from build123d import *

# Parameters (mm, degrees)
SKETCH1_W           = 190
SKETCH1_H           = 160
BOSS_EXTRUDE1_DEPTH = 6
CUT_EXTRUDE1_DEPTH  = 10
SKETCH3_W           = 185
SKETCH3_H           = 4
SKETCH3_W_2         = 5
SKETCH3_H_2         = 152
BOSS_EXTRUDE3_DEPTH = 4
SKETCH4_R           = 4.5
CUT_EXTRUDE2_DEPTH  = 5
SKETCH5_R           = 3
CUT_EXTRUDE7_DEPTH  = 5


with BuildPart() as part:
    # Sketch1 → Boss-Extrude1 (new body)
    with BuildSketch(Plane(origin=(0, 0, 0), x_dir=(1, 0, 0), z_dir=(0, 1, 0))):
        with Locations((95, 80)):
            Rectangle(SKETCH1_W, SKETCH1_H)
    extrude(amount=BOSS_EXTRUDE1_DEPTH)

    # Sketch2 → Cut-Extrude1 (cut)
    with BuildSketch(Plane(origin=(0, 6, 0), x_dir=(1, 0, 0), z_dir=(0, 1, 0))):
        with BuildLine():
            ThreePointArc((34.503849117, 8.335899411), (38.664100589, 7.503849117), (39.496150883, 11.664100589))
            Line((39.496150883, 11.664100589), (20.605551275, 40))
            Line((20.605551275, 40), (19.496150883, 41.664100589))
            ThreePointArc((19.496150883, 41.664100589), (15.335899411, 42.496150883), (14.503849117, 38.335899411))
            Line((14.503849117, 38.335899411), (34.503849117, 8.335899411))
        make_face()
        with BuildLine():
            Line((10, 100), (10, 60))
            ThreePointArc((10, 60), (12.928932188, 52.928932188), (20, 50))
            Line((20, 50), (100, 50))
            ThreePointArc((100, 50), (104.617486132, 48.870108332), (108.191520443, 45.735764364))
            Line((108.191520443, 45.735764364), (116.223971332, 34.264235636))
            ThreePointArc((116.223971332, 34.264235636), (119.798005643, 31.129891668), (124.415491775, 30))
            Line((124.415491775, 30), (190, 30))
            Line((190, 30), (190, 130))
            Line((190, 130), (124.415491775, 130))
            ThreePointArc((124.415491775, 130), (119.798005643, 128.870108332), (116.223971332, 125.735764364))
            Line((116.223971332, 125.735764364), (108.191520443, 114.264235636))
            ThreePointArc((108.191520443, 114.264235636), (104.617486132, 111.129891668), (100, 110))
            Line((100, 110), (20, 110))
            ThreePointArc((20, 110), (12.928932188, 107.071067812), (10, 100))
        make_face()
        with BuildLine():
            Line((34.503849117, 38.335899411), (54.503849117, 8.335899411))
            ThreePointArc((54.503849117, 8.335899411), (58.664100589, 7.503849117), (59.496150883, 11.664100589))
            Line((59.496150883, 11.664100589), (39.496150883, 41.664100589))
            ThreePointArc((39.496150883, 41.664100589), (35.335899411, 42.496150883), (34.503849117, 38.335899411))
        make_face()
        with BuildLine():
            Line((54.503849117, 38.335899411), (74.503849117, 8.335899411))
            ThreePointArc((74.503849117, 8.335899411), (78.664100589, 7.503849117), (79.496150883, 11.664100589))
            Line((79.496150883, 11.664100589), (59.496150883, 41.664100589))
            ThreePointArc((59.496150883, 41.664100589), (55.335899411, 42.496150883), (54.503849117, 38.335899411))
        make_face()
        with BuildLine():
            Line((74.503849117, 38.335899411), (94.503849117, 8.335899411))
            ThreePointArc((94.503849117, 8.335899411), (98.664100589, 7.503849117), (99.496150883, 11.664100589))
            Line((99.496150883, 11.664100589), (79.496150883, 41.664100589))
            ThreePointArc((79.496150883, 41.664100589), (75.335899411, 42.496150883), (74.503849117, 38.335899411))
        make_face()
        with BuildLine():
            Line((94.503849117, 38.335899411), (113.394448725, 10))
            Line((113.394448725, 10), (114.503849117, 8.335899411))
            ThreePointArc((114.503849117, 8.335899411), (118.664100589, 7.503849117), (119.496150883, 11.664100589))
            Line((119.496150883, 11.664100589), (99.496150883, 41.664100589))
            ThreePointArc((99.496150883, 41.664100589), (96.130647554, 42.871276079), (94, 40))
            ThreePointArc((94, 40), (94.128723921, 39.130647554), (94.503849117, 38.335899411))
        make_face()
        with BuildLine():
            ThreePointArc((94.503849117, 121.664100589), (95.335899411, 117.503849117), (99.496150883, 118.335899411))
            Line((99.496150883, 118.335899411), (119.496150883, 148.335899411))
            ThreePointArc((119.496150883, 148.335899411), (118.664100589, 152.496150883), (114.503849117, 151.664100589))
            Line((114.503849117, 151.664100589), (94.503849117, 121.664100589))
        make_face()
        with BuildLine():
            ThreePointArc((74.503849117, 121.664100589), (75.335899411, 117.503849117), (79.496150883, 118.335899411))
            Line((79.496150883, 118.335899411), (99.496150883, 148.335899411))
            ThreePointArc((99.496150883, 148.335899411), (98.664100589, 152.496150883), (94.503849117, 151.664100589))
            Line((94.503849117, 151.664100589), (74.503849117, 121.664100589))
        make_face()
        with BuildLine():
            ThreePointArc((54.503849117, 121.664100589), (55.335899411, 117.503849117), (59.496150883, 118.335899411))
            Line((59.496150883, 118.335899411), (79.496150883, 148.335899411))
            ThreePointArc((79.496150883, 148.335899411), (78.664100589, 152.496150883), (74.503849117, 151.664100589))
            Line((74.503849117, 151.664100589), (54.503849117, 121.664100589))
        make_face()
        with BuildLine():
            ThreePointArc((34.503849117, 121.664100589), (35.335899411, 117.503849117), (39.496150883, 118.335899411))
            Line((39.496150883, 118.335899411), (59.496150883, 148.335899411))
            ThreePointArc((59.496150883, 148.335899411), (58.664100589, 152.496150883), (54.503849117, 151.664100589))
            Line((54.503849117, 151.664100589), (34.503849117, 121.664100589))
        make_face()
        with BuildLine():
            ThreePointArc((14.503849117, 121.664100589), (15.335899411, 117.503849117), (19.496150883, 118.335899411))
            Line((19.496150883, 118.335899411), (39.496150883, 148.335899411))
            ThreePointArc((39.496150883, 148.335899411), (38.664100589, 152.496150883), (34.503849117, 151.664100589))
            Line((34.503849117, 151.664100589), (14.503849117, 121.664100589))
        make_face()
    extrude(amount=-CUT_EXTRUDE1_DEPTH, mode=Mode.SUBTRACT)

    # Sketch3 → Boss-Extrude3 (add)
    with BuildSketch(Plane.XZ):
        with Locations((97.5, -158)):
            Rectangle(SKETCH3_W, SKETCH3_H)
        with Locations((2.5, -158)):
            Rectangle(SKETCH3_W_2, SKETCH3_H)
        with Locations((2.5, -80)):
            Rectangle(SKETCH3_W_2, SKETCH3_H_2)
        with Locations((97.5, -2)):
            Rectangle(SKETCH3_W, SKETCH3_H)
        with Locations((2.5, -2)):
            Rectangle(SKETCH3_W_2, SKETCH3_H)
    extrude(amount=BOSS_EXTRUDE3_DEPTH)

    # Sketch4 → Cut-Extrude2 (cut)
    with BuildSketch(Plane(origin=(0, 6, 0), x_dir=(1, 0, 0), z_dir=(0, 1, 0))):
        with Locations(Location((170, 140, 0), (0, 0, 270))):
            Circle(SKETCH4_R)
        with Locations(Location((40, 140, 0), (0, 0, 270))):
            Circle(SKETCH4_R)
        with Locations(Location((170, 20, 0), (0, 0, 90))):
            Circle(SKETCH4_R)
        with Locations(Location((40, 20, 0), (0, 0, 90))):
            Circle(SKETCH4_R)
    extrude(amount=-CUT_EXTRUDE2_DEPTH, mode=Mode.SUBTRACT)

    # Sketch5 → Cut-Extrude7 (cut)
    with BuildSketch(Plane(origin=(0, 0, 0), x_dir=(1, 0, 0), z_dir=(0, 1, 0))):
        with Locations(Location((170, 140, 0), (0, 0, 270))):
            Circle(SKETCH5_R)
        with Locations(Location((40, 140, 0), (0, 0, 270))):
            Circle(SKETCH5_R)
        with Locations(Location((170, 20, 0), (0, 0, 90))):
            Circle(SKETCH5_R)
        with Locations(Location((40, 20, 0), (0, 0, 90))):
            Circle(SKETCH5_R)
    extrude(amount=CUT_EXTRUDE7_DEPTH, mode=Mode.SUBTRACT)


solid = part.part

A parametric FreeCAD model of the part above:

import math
import FreeCAD as App
import Part
import Sketcher

V = App.Vector
Q = App.Units.Quantity


def add_polygon(sketch, points):
    """Adds a closed chain of lines whose ends are joined by coincident constraints."""
    first, n = sketch.GeometryCount, len(points)
    for a, b in zip(points, points[1:] + points[:1]):
        sketch.addGeometry(Part.LineSegment(App.Vector(*a, 0), App.Vector(*b, 0)), False)
    for i in range(n):
        sketch.addConstraint(Sketcher.Constraint("Coincident", first + i, 2, first + (i + 1) % n, 1))

doc = App.newDocument("Part")
body = doc.addObject("PartDesign::Body", "Body")

# Sketch on XZ plane
sketch1 = body.newObject("Sketcher::SketchObject", "Sketch")
sketch1.AttachmentSupport = (doc.getObject("XZ_Plane"), [""])
sketch1.MapMode = "FlatFace"
add_polygon(sketch1, [(0, -160), (0, 0), (190, 0), (190, -160)])  # lines 0-3
sketch1.addConstraint([
    Sketcher.Constraint("Vertical", 0),
    Sketcher.Constraint("Horizontal", 1),
    Sketcher.Constraint("Vertical", 2),
    Sketcher.Constraint("Horizontal", 3),
    Sketcher.Constraint("Coincident", 0, 2, -1, 1),
    Sketcher.Constraint("DistanceX", 1, 1, 1, 2, 190.0),
    Sketcher.Constraint("DistanceY", 0, 1, 0, 2, 160.0),
])
pad1 = body.newObject("PartDesign::Pad", "Pad")
pad1.Profile = sketch1
pad1.Length = 6
pad1.Reversed = True

# Sketch on XZ plane
sketch2 = body.newObject("Sketcher::SketchObject", "Sketch001")
sketch2.AttachmentSupport = (doc.getObject("XZ_Plane"), [""])
sketch2.MapMode = "FlatFace"
sketch2.AttachmentOffset = App.Placement(V(0, 0, -6), App.Rotation())
sketch2.addGeometry([
    Part.ArcOfCircle(Part.Circle(V(37, -10, 0), V(0, 0, 1), 3), math.radians(-34), math.radians(146)),  # 0
    Part.LineSegment(V(39.5, -11.7, 0), V(20.6, -40, 0)),  # 1
    Part.LineSegment(V(20.6, -40, 0), V(19.5, -41.7, 0)),  # 2
    Part.ArcOfCircle(Part.Circle(V(17, -40, 0), V(0, 0, 1), 3), math.radians(146), math.radians(326)),  # 3
    Part.LineSegment(V(14.5, -38.3, 0), V(34.5, -8.3, 0)),  # 4
    Part.LineSegment(V(10, -100, 0), V(10, -60, 0)),  # 5
    Part.ArcOfCircle(Part.Circle(V(20, -60, 0), V(0, 0, 1), 10), math.radians(90), math.radians(180)),  # 6
    Part.LineSegment(V(20, -50, 0), V(100, -50, 0)),  # 7
    Part.ArcOfCircle(Part.Circle(V(100, -40, 0), V(0, 0, 1), 10), math.radians(-90), math.radians(-35)),  # 8
    Part.LineSegment(V(108.2, -45.7, 0), V(116.2, -34.3, 0)),  # 9
    Part.ArcOfCircle(Part.Circle(V(124.4, -40, 0), V(0, 0, 1), 10), math.radians(90), math.radians(145)),  # 10
    Part.LineSegment(V(124.4, -30, 0), V(190, -30, 0)),  # 11
    Part.LineSegment(V(190, -30, 0), V(190, -130, 0)),  # 12
    Part.LineSegment(V(190, -130, 0), V(124.4, -130, 0)),  # 13
    Part.ArcOfCircle(Part.Circle(V(124.4, -120, 0), V(0, 0, 1), 10), math.radians(-145), math.radians(-90)),  # 14
    Part.LineSegment(V(116.2, -125.7, 0), V(108.2, -114.3, 0)),  # 15
    Part.ArcOfCircle(Part.Circle(V(100, -120, 0), V(0, 0, 1), 10), math.radians(35), math.radians(90)),  # 16
    Part.LineSegment(V(100, -110, 0), V(20, -110, 0)),  # 17
    Part.ArcOfCircle(Part.Circle(V(20, -100, 0), V(0, 0, 1), 10), math.radians(180), math.radians(270)),  # 18
    Part.LineSegment(V(34.5, -38.3, 0), V(54.5, -8.3, 0)),  # 19
    Part.ArcOfCircle(Part.Circle(V(57, -10, 0), V(0, 0, 1), 3), math.radians(-34), math.radians(146)),  # 20
    Part.LineSegment(V(59.5, -11.7, 0), V(39.5, -41.7, 0)),  # 21
    Part.ArcOfCircle(Part.Circle(V(37, -40, 0), V(0, 0, 1), 3), math.radians(146), math.radians(326)),  # 22
    Part.LineSegment(V(54.5, -38.3, 0), V(74.5, -8.3, 0)),  # 23
    Part.ArcOfCircle(Part.Circle(V(77, -10, 0), V(0, 0, 1), 3), math.radians(-34), math.radians(146)),  # 24
    Part.LineSegment(V(79.5, -11.7, 0), V(59.5, -41.7, 0)),  # 25
    Part.ArcOfCircle(Part.Circle(V(57, -40, 0), V(0, 0, 1), 3), math.radians(146), math.radians(326)),  # 26
    Part.LineSegment(V(74.5, -38.3, 0), V(94.5, -8.3, 0)),  # 27
    Part.ArcOfCircle(Part.Circle(V(97, -10, 0), V(0, 0, 1), 3), math.radians(-34), math.radians(146)),  # 28
    Part.LineSegment(V(99.5, -11.7, 0), V(79.5, -41.7, 0)),  # 29
    Part.ArcOfCircle(Part.Circle(V(77, -40, 0), V(0, 0, 1), 3), math.radians(146), math.radians(326)),  # 30
    Part.LineSegment(V(94.5, -38.3, 0), V(113.4, -10, 0)),  # 31
    Part.LineSegment(V(113.4, -10, 0), V(114.5, -8.3, 0)),  # 32
    Part.ArcOfCircle(Part.Circle(V(117, -10, 0), V(0, 0, 1), 3), math.radians(-34), math.radians(146)),  # 33
    Part.LineSegment(V(119.5, -11.7, 0), V(99.5, -41.7, 0)),  # 34
    Part.ArcOfCircle(Part.Circle(V(97, -40, 0), V(0, 0, 1), 3), math.radians(-180), math.radians(-34)),  # 35
    Part.ArcOfCircle(Part.Circle(V(97, -40, 0), V(0, 0, 1), 3), math.radians(146), math.radians(180)),  # 36
    Part.ArcOfCircle(Part.Circle(V(97, -120, 0), V(0, 0, 1), 3), math.radians(34), math.radians(214)),  # 37
    Part.LineSegment(V(99.5, -118.3, 0), V(119.5, -148.3, 0)),  # 38
    Part.ArcOfCircle(Part.Circle(V(117, -150, 0), V(0, 0, 1), 3), math.radians(-146), math.radians(34)),  # 39
    Part.LineSegment(V(114.5, -151.7, 0), V(94.5, -121.7, 0)),  # 40
    Part.ArcOfCircle(Part.Circle(V(77, -120, 0), V(0, 0, 1), 3), math.radians(34), math.radians(214)),  # 41
    Part.LineSegment(V(79.5, -118.3, 0), V(99.5, -148.3, 0)),  # 42
    Part.ArcOfCircle(Part.Circle(V(97, -150, 0), V(0, 0, 1), 3), math.radians(-146), math.radians(34)),  # 43
    Part.LineSegment(V(94.5, -151.7, 0), V(74.5, -121.7, 0)),  # 44
    Part.ArcOfCircle(Part.Circle(V(57, -120, 0), V(0, 0, 1), 3), math.radians(34), math.radians(214)),  # 45
    Part.LineSegment(V(59.5, -118.3, 0), V(79.5, -148.3, 0)),  # 46
    Part.ArcOfCircle(Part.Circle(V(77, -150, 0), V(0, 0, 1), 3), math.radians(-146), math.radians(34)),  # 47
    Part.LineSegment(V(74.5, -151.7, 0), V(54.5, -121.7, 0)),  # 48
    Part.ArcOfCircle(Part.Circle(V(37, -120, 0), V(0, 0, 1), 3), math.radians(34), math.radians(214)),  # 49
    Part.LineSegment(V(39.5, -118.3, 0), V(59.5, -148.3, 0)),  # 50
    Part.ArcOfCircle(Part.Circle(V(57, -150, 0), V(0, 0, 1), 3), math.radians(-146), math.radians(34)),  # 51
    Part.LineSegment(V(54.5, -151.7, 0), V(34.5, -121.7, 0)),  # 52
    Part.ArcOfCircle(Part.Circle(V(17, -120, 0), V(0, 0, 1), 3), math.radians(34), math.radians(214)),  # 53
    Part.LineSegment(V(19.5, -118.3, 0), V(39.5, -148.3, 0)),  # 54
    Part.ArcOfCircle(Part.Circle(V(37, -150, 0), V(0, 0, 1), 3), math.radians(-146), math.radians(34)),  # 55
    Part.LineSegment(V(34.5, -151.7, 0), V(14.5, -121.7, 0)),  # 56
], False)
sketch2.addConstraint([
    Sketcher.Constraint("Tangent", 0, 1, 1, 1),
    Sketcher.Constraint("Coincident", 1, 2, 2, 1),
    Sketcher.Constraint("Tangent", 2, 2, 3, 2),
    Sketcher.Constraint("Tangent", 3, 1, 4, 1),
    Sketcher.Constraint("Tangent", 4, 2, 0, 2),
    Sketcher.Constraint("Tangent", 5, 2, 6, 2),
    Sketcher.Constraint("Tangent", 6, 1, 7, 1),
    Sketcher.Constraint("Tangent", 7, 2, 8, 1),
    Sketcher.Constraint("Tangent", 8, 2, 9, 1),
    Sketcher.Constraint("Tangent", 9, 2, 10, 2),
    Sketcher.Constraint("Tangent", 10, 1, 11, 1),
    Sketcher.Constraint("Coincident", 11, 2, 12, 1),
    Sketcher.Constraint("Coincident", 12, 2, 13, 1),
    Sketcher.Constraint("Tangent", 13, 2, 14, 2),
    Sketcher.Constraint("Tangent", 14, 1, 15, 1),
    Sketcher.Constraint("Tangent", 15, 2, 16, 1),
    Sketcher.Constraint("Tangent", 16, 2, 17, 1),
    Sketcher.Constraint("Tangent", 17, 2, 18, 2),
    Sketcher.Constraint("Tangent", 18, 1, 5, 1),
    Sketcher.Constraint("Tangent", 19, 2, 20, 2),
    Sketcher.Constraint("Tangent", 20, 1, 21, 1),
    Sketcher.Constraint("Tangent", 21, 2, 22, 2),
    Sketcher.Constraint("Tangent", 22, 1, 19, 1),
    Sketcher.Constraint("Tangent", 23, 2, 24, 2),
    Sketcher.Constraint("Tangent", 24, 1, 25, 1),
    Sketcher.Constraint("Tangent", 25, 2, 26, 2),
    Sketcher.Constraint("Tangent", 26, 1, 23, 1),
    Sketcher.Constraint("Tangent", 27, 2, 28, 2),
    Sketcher.Constraint("Tangent", 28, 1, 29, 1),
    Sketcher.Constraint("Tangent", 29, 2, 30, 2),
    Sketcher.Constraint("Tangent", 30, 1, 27, 1),
    Sketcher.Constraint("Coincident", 31, 2, 32, 1),
    Sketcher.Constraint("Tangent", 32, 2, 33, 2),
    Sketcher.Constraint("Tangent", 33, 1, 34, 1),
    Sketcher.Constraint("Tangent", 34, 2, 35, 2),
    Sketcher.Constraint("Tangent", 35, 1, 36, 2),
    Sketcher.Constraint("Tangent", 36, 1, 31, 1),
    Sketcher.Constraint("Tangent", 37, 1, 38, 1),
    Sketcher.Constraint("Tangent", 38, 2, 39, 2),
    Sketcher.Constraint("Tangent", 39, 1, 40, 1),
    Sketcher.Constraint("Tangent", 40, 2, 37, 2),
    Sketcher.Constraint("Tangent", 41, 1, 42, 1),
    Sketcher.Constraint("Tangent", 42, 2, 43, 2),
    Sketcher.Constraint("Tangent", 43, 1, 44, 1),
    Sketcher.Constraint("Tangent", 44, 2, 41, 2),
    Sketcher.Constraint("Tangent", 45, 1, 46, 1),
    Sketcher.Constraint("Tangent", 46, 2, 47, 2),
    Sketcher.Constraint("Tangent", 47, 1, 48, 1),
    Sketcher.Constraint("Tangent", 48, 2, 45, 2),
    Sketcher.Constraint("Tangent", 49, 1, 50, 1),
    Sketcher.Constraint("Tangent", 50, 2, 51, 2),
    Sketcher.Constraint("Tangent", 51, 1, 52, 1),
    Sketcher.Constraint("Tangent", 52, 2, 49, 2),
    Sketcher.Constraint("Tangent", 53, 1, 54, 1),
    Sketcher.Constraint("Tangent", 54, 2, 55, 2),
    Sketcher.Constraint("Tangent", 55, 1, 56, 1),
    Sketcher.Constraint("Tangent", 56, 2, 53, 2),
    Sketcher.Constraint("Vertical", 5),
    Sketcher.Constraint("Horizontal", 7),
    Sketcher.Constraint("Horizontal", 11),
    Sketcher.Constraint("Vertical", 12),
    Sketcher.Constraint("Horizontal", 13),
    Sketcher.Constraint("Horizontal", 17),
    Sketcher.Constraint("Equal", 0, 3),
    Sketcher.Constraint("Equal", 6, 8),
    Sketcher.Constraint("Equal", 8, 10),
    Sketcher.Constraint("Equal", 10, 14),
    Sketcher.Constraint("Equal", 14, 16),
    Sketcher.Constraint("Equal", 16, 18),
    Sketcher.Constraint("Equal", 3, 20),
    Sketcher.Constraint("Equal", 20, 22),
    Sketcher.Constraint("Equal", 22, 24),
    Sketcher.Constraint("Equal", 24, 26),
    Sketcher.Constraint("Equal", 26, 28),
    Sketcher.Constraint("Equal", 28, 30),
    Sketcher.Constraint("Equal", 30, 33),
    Sketcher.Constraint("Equal", 33, 35),
    Sketcher.Constraint("Equal", 35, 36),
    Sketcher.Constraint("Equal", 36, 37),
    Sketcher.Constraint("Equal", 37, 39),
    Sketcher.Constraint("Equal", 39, 41),
    Sketcher.Constraint("Equal", 41, 43),
    Sketcher.Constraint("Equal", 43, 45),
    Sketcher.Constraint("Equal", 45, 47),
    Sketcher.Constraint("Equal", 47, 49),
    Sketcher.Constraint("Equal", 49, 51),
    Sketcher.Constraint("Equal", 51, 53),
    Sketcher.Constraint("Equal", 53, 55),
    Sketcher.Constraint("Parallel", 1, 2),
    Sketcher.Constraint("Parallel", 4, 19),
    Sketcher.Constraint("Parallel", 21, 23),
    Sketcher.Constraint("Parallel", 25, 27),
    Sketcher.Constraint("Parallel", 29, 31),
    Sketcher.Constraint("Parallel", 31, 32),
    Sketcher.Constraint("Parallel", 40, 42),
    Sketcher.Constraint("Parallel", 44, 46),
    Sketcher.Constraint("Parallel", 48, 50),
    Sketcher.Constraint("Parallel", 52, 54),
    Sketcher.Constraint("Horizontal", 3, 3, 8, 3),
    Sketcher.Constraint("Horizontal", 8, 3, 10, 3),
    Sketcher.Constraint("Horizontal", 14, 3, 16, 3),
    Sketcher.Constraint("Horizontal", 0, 3, 20, 3),
    Sketcher.Constraint("Horizontal", 10, 3, 22, 3),
    Sketcher.Constraint("Horizontal", 20, 3, 24, 3),
    Sketcher.Constraint("Horizontal", 22, 3, 26, 3),
    Sketcher.Constraint("Horizontal", 24, 3, 28, 3),
    Sketcher.Constraint("Horizontal", 26, 3, 30, 3),
    Sketcher.Constraint("Horizontal", 28, 3, 33, 3),
    Sketcher.Constraint("Horizontal", 30, 3, 35, 3),
    Sketcher.Constraint("Horizontal", 16, 3, 37, 3),
    Sketcher.Constraint("Horizontal", 37, 3, 41, 3),
    Sketcher.Constraint("Horizontal", 39, 3, 43, 3),
    Sketcher.Constraint("Horizontal", 41, 3, 45, 3),
    Sketcher.Constraint("Horizontal", 43, 3, 47, 3),
    Sketcher.Constraint("Horizontal", 45, 3, 49, 3),
    Sketcher.Constraint("Horizontal", 47, 3, 51, 3),
    Sketcher.Constraint("Horizontal", 49, 3, 53, 3),
    Sketcher.Constraint("Horizontal", 51, 3, 55, 3),
    Sketcher.Constraint("Horizontal", 36, 3, 1, 2),
    Sketcher.Constraint("Horizontal", 33, 3, 31, 2),
    Sketcher.Constraint("Horizontal", 1, 2, 35, 1),
    Sketcher.Constraint("Vertical", 10, 3, 14, 3),
    Sketcher.Constraint("Vertical", 8, 3, 16, 3),
    Sketcher.Constraint("Vertical", 0, 3, 22, 3),
    Sketcher.Constraint("Vertical", 20, 3, 26, 3),
    Sketcher.Constraint("Vertical", 24, 3, 30, 3),
    Sketcher.Constraint("Vertical", 28, 3, 35, 3),
    Sketcher.Constraint("Vertical", 36, 3, 37, 3),
    Sketcher.Constraint("Vertical", 33, 3, 39, 3),
    Sketcher.Constraint("Vertical", 30, 3, 41, 3),
    Sketcher.Constraint("Vertical", 26, 3, 45, 3),
    Sketcher.Constraint("Vertical", 22, 3, 49, 3),
    Sketcher.Constraint("Vertical", 3, 3, 53, 3),
    Sketcher.Constraint("Vertical", 34, 2, 37, 1),
    Sketcher.Constraint("Radius", 0, 3.0),
    Sketcher.Constraint("Radius", 6, 10.0),
    Sketcher.Constraint("DistanceX", 7, 1, 7, 2, 80.0),
    Sketcher.Constraint("DistanceY", 5, 1, 5, 2, 40.0),
    Sketcher.Constraint("Angle", 9, Q("55 deg")),
    Sketcher.Constraint("Distance", 2, 2.0),
    Sketcher.Constraint("DistanceX", -1, 1, 0, 3, 37.0),
    Sketcher.Constraint("DistanceY", 0, 3, -1, 1, 10.0),
    Sketcher.Constraint("DistanceX", -1, 1, 3, 3, 17.0),
    Sketcher.Constraint("DistanceX", -1, 1, 6, 3, 20.0),
    Sketcher.Constraint("DistanceX", -1, 1, 11, 2, 190.0),
])
pocket1 = body.newObject("PartDesign::Pocket", "Pocket")
pocket1.Profile = sketch2
pocket1.Length = 10
pocket1.Reversed = True

# Sketch on XZ plane
sketch3 = body.newObject("Sketcher::SketchObject", "Sketch002")
sketch3.AttachmentSupport = (doc.getObject("XZ_Plane"), [""])
sketch3.MapMode = "FlatFace"
add_polygon(sketch3, [(190, -160), (190, -156), (5, -156), (5, -4), (190, -4), (190, 0), (0, 0), (0, -160)])  # lines 0-7
sketch3.addConstraint([
    Sketcher.Constraint("Vertical", 0),
    Sketcher.Constraint("Horizontal", 1),
    Sketcher.Constraint("Vertical", 2),
    Sketcher.Constraint("Horizontal", 3),
    Sketcher.Constraint("Vertical", 4),
    Sketcher.Constraint("Horizontal", 5),
    Sketcher.Constraint("Vertical", 6),
    Sketcher.Constraint("Horizontal", 7),
    Sketcher.Constraint("Coincident", 5, 2, -1, 1),
    Sketcher.Constraint("Vertical", 0, 2, 3, 2),
    Sketcher.Constraint("Equal", 0, 4),
    Sketcher.Constraint("DistanceX", 1, 2, 1, 1, 185.0),
    Sketcher.Constraint("DistanceX", 5, 2, 5, 1, 190.0),
    Sketcher.Constraint("DistanceY", 0, 1, 0, 2, 4.0),
    Sketcher.Constraint("DistanceY", 2, 1, 2, 2, 152.0),
])
pad2 = body.newObject("PartDesign::Pad", "Pad001")
pad2.Profile = sketch3
pad2.Length = 4

# Sketch on XZ plane
sketch4 = body.newObject("Sketcher::SketchObject", "Sketch003")
sketch4.AttachmentSupport = (doc.getObject("XZ_Plane"), [""])
sketch4.MapMode = "FlatFace"
sketch4.AttachmentOffset = App.Placement(V(0, 0, -6), App.Rotation())
sketch4.addGeometry([
    Part.Circle(V(170, -140, 0), V(0, 0, 1), 4.5),
    Part.Circle(V(40, -140, 0), V(0, 0, 1), 4.5),
    Part.Circle(V(170, -20, 0), V(0, 0, 1), 4.5),
    Part.Circle(V(40, -20, 0), V(0, 0, 1), 4.5),
], False)
sketch4.addConstraint([
    Sketcher.Constraint("Equal", 0, 1),
    Sketcher.Constraint("Equal", 1, 2),
    Sketcher.Constraint("Equal", 2, 3),
    Sketcher.Constraint("Horizontal", 0, 3, 1, 3),
    Sketcher.Constraint("Horizontal", 2, 3, 3, 3),
    Sketcher.Constraint("Vertical", 0, 3, 2, 3),
    Sketcher.Constraint("Vertical", 1, 3, 3, 3),
    Sketcher.Constraint("Diameter", 0, 9.0),
    Sketcher.Constraint("DistanceX", -1, 1, 0, 3, 170.0),
    Sketcher.Constraint("DistanceY", 0, 3, -1, 1, 140.0),
    Sketcher.Constraint("DistanceX", -1, 1, 1, 3, 40.0),
    Sketcher.Constraint("DistanceY", 2, 3, -1, 1, 20.0),
])
pocket2 = body.newObject("PartDesign::Pocket", "Pocket001")
pocket2.Profile = sketch4
pocket2.Length = 5
pocket2.Reversed = True

# Sketch on XZ plane
sketch5 = body.newObject("Sketcher::SketchObject", "Sketch004")
sketch5.AttachmentSupport = (doc.getObject("XZ_Plane"), [""])
sketch5.MapMode = "FlatFace"
sketch5.addGeometry([
    Part.Circle(V(170, -140, 0), V(0, 0, 1), 3),
    Part.Circle(V(40, -140, 0), V(0, 0, 1), 3),
    Part.Circle(V(170, -20, 0), V(0, 0, 1), 3),
    Part.Circle(V(40, -20, 0), V(0, 0, 1), 3),
], False)
sketch5.addConstraint([
    Sketcher.Constraint("Equal", 0, 1),
    Sketcher.Constraint("Equal", 1, 2),
    Sketcher.Constraint("Equal", 2, 3),
    Sketcher.Constraint("Horizontal", 0, 3, 1, 3),
    Sketcher.Constraint("Horizontal", 2, 3, 3, 3),
    Sketcher.Constraint("Vertical", 0, 3, 2, 3),
    Sketcher.Constraint("Vertical", 1, 3, 3, 3),
    Sketcher.Constraint("Diameter", 0, 6.0),
    Sketcher.Constraint("DistanceX", -1, 1, 0, 3, 170.0),
    Sketcher.Constraint("DistanceY", 0, 3, -1, 1, 140.0),
    Sketcher.Constraint("DistanceX", -1, 1, 1, 3, 40.0),
    Sketcher.Constraint("DistanceY", 2, 3, -1, 1, 20.0),
])
pocket3 = body.newObject("PartDesign::Pocket", "Pocket002")
pocket3.Profile = sketch5
pocket3.Length = 5

doc.recompute()
